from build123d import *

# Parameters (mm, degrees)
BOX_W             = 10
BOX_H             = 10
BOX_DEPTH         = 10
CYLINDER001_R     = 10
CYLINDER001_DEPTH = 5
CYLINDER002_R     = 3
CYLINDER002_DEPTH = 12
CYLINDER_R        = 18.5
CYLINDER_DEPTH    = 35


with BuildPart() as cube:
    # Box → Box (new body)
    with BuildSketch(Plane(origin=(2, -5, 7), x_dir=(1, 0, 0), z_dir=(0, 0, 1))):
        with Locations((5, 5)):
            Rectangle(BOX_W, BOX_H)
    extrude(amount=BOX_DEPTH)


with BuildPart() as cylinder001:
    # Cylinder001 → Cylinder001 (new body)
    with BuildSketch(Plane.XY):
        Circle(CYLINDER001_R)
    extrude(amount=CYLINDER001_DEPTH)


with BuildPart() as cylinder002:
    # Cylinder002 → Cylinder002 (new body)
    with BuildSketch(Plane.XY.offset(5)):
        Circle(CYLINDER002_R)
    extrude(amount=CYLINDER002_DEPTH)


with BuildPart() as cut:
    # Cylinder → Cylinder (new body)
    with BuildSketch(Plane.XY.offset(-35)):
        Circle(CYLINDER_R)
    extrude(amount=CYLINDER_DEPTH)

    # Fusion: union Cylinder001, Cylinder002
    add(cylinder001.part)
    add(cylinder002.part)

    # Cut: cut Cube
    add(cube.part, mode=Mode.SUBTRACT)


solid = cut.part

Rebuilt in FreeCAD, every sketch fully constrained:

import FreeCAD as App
import Part
import Sketcher
Q = App.Units.Quantity


def add_polygon(sketch, points):
    """Adds a closed chain of lines whose ends are joined by coincident constraints."""
    first, n = sketch.GeometryCount, len(points)
    for a, b in zip(points, points[1:] + points[:1]):
        sketch.addGeometry(Part.LineSegment(App.Vector(*a, 0), App.Vector(*b, 0)), False)
    for i in range(n):
        sketch.addConstraint(Sketcher.Constraint("Coincident", first + i, 2, first + (i + 1) % n, 1))

doc = App.newDocument("Part")
body = doc.addObject("PartDesign::Body", "Body")

sketch1 = body.newObject("Sketcher::SketchObject", "Sketch")
sketch1.AttachmentSupport = (doc.getObject("XY_Plane"), [""])
sketch1.MapMode = "FlatFace"
sketch1.AttachmentOffset = App.Placement(App.Vector(0, 0, 7), App.Rotation())
add_polygon(sketch1, [(2, 5), (2, -5), (12, -5), (12, 5)])
sketch1.addConstraint([
    Sketcher.Constraint("Vertical", 0),
    Sketcher.Constraint("Horizontal", 1),
    Sketcher.Constraint("Vertical", 2),
    Sketcher.Constraint("Horizontal", 3),
    Sketcher.Constraint("Equal", 3, 0),
    Sketcher.Constraint("DistanceX", 1, 1, 1, 2, Q("10 mm")),
    Sketcher.Constraint("DistanceX", -1, 1, 0, 2, Q("2 mm")),
    Sketcher.Constraint("DistanceY", 0, 2, -1, 1, Q("5 mm")),
])
pad1 = body.newObject("PartDesign::Pad", "Pad")
pad1.Profile = sketch1
pad1.Length = 10
body2 = doc.addObject("PartDesign::Body", "Body001")

sketch2 = body2.newObject("Sketcher::SketchObject", "Sketch001")
sketch2.AttachmentSupport = (doc.getObject("XY_Plane001"), [""])
sketch2.MapMode = "FlatFace"
sketch2.addGeometry(Part.Circle(App.Vector(0, 0, 0), App.Vector(0, 0, 1), 10), False)
sketch2.addConstraint([
    Sketcher.Constraint("Coincident", 0, 3, -1, 1),
    Sketcher.Constraint("Diameter", 0, Q("20 mm")),
])
pad2 = body2.newObject("PartDesign::Pad", "Pad001")
pad2.Profile = sketch2
pad2.Length = 5
body3 = doc.addObject("PartDesign::Body", "Body002")

sketch3 = body3.newObject("Sketcher::SketchObject", "Sketch002")
sketch3.AttachmentSupport = (doc.getObject("XY_Plane002"), [""])
sketch3.MapMode = "FlatFace"
sketch3.AttachmentOffset = App.Placement(App.Vector(0, 0, 5), App.Rotation())
sketch3.addGeometry(Part.Circle(App.Vector(0, 0, 0), App.Vector(0, 0, 1), 3), False)
sketch3.addConstraint([
    Sketcher.Constraint("Coincident", 0, 3, -1, 1),
    Sketcher.Constraint("Diameter", 0, Q("6 mm")),
])
pad3 = body3.newObject("PartDesign::Pad", "Pad002")
pad3.Profile = sketch3
pad3.Length = 12
body4 = doc.addObject("PartDesign::Body", "Body003")

sketch4 = body4.newObject("Sketcher::SketchObject", "Sketch003")
sketch4.AttachmentSupport = (doc.getObject("XY_Plane003"), [""])
sketch4.MapMode = "FlatFace"
sketch4.AttachmentOffset = App.Placement(App.Vector(0, 0, -35), App.Rotation())
sketch4.addGeometry(Part.Circle(App.Vector(0, 0, 0), App.Vector(0, 0, 1), 18), False)
sketch4.addConstraint([
    Sketcher.Constraint("Coincident", 0, 3, -1, 1),
    Sketcher.Constraint("Diameter", 0, Q("37 mm")),
])
pad4 = body4.newObject("PartDesign::Pad", "Pad003")
pad4.Profile = sketch4
pad4.Length = 35
doc.recompute()

boolean = body4.newObject("PartDesign::Boolean", "Boolean")
boolean.Type = "Fuse"
boolean.addObjects([body2])
doc.recompute()

boolean2 = body4.newObject("PartDesign::Boolean", "Boolean001")
boolean2.Type = "Fuse"
boolean2.addObjects([body3])
doc.recompute()

boolean3 = body4.newObject("PartDesign::Boolean", "Boolean002")
boolean3.Type = "Cut"
boolean3.addObjects([body])

doc.recompute()
